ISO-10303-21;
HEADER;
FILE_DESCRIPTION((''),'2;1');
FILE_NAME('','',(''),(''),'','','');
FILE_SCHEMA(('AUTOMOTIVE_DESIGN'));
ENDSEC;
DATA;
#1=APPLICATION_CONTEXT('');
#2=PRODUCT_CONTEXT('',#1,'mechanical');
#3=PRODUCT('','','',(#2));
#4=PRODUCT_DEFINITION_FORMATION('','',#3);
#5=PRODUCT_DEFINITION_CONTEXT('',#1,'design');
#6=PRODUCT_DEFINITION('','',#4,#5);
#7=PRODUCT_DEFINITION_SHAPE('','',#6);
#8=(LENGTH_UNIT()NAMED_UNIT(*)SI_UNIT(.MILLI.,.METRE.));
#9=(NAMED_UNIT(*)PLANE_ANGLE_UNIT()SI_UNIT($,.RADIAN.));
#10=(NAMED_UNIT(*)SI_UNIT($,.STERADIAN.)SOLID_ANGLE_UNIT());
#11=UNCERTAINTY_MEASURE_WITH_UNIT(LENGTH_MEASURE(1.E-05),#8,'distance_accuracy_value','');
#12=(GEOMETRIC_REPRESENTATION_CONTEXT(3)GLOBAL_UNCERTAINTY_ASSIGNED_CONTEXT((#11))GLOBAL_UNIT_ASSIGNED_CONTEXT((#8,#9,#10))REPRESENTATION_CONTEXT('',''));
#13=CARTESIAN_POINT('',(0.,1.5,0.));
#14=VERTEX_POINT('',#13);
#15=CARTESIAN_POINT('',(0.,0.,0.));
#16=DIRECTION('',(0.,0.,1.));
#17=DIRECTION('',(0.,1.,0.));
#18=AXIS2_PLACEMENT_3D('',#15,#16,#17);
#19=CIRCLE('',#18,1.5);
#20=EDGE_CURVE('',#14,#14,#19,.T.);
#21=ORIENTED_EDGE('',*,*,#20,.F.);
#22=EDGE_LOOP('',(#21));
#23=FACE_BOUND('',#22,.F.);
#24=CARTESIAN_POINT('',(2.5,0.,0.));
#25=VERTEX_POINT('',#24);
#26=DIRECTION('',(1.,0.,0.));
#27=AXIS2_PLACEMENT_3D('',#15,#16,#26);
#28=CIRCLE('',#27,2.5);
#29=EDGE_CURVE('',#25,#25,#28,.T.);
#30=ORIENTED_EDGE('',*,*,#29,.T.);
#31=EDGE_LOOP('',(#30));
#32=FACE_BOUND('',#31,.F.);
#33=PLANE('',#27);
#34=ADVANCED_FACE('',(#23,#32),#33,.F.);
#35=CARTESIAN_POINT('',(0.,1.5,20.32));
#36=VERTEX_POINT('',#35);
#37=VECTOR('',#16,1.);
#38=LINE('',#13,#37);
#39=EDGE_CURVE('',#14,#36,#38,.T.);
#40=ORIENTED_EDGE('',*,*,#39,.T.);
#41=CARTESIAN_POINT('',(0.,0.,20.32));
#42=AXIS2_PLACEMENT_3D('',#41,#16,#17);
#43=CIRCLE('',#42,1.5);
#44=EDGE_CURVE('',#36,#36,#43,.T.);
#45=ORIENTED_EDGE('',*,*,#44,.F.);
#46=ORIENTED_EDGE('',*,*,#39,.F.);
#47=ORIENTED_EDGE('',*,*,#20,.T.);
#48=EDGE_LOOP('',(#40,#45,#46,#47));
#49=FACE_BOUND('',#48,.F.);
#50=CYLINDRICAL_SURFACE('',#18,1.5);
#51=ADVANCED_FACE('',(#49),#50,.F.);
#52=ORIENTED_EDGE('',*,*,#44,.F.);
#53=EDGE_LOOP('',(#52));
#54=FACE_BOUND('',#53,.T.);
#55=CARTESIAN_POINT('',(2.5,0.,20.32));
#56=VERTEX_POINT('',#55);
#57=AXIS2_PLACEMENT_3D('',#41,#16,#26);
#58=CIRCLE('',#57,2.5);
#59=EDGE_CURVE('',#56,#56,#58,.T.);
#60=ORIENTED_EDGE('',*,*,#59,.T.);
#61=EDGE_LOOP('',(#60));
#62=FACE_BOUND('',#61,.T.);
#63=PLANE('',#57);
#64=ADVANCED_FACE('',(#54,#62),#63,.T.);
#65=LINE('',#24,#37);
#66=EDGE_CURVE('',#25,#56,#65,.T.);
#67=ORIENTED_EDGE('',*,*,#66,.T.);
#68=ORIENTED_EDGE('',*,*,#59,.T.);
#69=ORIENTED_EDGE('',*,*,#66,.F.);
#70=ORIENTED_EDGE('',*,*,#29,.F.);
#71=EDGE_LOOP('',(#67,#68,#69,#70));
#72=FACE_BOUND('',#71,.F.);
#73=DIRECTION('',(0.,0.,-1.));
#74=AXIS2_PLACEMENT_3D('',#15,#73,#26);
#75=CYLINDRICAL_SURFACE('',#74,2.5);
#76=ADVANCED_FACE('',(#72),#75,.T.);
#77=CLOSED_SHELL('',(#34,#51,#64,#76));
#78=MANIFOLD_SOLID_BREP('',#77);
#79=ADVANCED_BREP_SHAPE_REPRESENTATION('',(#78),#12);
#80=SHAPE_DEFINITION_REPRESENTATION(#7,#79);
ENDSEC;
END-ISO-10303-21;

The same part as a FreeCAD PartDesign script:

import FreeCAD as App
import Part
import Sketcher
from FreeCAD import Vector

doc = App.newDocument("Part")
params = doc.addObject("Spreadsheet::Sheet", "Params")
for row, (alias, value) in enumerate([
    ("sketch1_diameter", "5 mm"),
    ("pad1_length", "20.32 mm"),
    ("sketch2_diameter", "3 mm"),
    ("hole_diameter", "3 mm"),
], start=1):
    params.set(f"A{row}", alias)
    params.set(f"B{row}", "=" + value)
    params.setAlias(f"B{row}", alias)

body = doc.addObject("PartDesign::Body", "Body")

# Sketch on XY plane
sketch1 = body.newObject("Sketcher::SketchObject", "Sketch")
sketch1.AttachmentSupport = (doc.getObject("XY_Plane"), [""])
sketch1.MapMode = "FlatFace"
sketch1.addGeometry(Part.Circle(Vector(0, 0, 0), Vector(0, 0, 1), 2.5), False)
sketch1.addConstraint(Sketcher.Constraint("Coincident", 0, 3, -1, 1))
sketch1.addConstraint(Sketcher.Constraint("Diameter", 0, 5.0))
sketch1.setExpression("Constraints[1]", "Params.sketch1_diameter")
pad1 = body.newObject("PartDesign::Pad", "Pad")
pad1.Profile = sketch1
pad1.setExpression("Length", "Params.pad1_length")

# Sketch on XY plane
sketch2 = body.newObject("Sketcher::SketchObject", "Sketch001")
sketch2.AttachmentSupport = (doc.getObject("XY_Plane"), [""])
sketch2.MapMode = "FlatFace"
sketch2.addGeometry(Part.Circle(Vector(0, 0, 0), Vector(0, 0, 1), 1.5), False)
sketch2.addConstraint(Sketcher.Constraint("Coincident", 0, 3, -1, 1))
sketch2.addConstraint(Sketcher.Constraint("Diameter", 0, 3.0))
sketch2.setExpression("Constraints[1]", "Params.sketch2_diameter")
doc.recompute()
hole = body.newObject("PartDesign::Hole", "Hole")
hole.Profile = sketch2
hole.ThreadType = "None"
hole.setExpression("Diameter", "Params.hole_diameter")
hole.DepthType = "ThroughAll"
hole.Reversed = True

doc.recompute()
